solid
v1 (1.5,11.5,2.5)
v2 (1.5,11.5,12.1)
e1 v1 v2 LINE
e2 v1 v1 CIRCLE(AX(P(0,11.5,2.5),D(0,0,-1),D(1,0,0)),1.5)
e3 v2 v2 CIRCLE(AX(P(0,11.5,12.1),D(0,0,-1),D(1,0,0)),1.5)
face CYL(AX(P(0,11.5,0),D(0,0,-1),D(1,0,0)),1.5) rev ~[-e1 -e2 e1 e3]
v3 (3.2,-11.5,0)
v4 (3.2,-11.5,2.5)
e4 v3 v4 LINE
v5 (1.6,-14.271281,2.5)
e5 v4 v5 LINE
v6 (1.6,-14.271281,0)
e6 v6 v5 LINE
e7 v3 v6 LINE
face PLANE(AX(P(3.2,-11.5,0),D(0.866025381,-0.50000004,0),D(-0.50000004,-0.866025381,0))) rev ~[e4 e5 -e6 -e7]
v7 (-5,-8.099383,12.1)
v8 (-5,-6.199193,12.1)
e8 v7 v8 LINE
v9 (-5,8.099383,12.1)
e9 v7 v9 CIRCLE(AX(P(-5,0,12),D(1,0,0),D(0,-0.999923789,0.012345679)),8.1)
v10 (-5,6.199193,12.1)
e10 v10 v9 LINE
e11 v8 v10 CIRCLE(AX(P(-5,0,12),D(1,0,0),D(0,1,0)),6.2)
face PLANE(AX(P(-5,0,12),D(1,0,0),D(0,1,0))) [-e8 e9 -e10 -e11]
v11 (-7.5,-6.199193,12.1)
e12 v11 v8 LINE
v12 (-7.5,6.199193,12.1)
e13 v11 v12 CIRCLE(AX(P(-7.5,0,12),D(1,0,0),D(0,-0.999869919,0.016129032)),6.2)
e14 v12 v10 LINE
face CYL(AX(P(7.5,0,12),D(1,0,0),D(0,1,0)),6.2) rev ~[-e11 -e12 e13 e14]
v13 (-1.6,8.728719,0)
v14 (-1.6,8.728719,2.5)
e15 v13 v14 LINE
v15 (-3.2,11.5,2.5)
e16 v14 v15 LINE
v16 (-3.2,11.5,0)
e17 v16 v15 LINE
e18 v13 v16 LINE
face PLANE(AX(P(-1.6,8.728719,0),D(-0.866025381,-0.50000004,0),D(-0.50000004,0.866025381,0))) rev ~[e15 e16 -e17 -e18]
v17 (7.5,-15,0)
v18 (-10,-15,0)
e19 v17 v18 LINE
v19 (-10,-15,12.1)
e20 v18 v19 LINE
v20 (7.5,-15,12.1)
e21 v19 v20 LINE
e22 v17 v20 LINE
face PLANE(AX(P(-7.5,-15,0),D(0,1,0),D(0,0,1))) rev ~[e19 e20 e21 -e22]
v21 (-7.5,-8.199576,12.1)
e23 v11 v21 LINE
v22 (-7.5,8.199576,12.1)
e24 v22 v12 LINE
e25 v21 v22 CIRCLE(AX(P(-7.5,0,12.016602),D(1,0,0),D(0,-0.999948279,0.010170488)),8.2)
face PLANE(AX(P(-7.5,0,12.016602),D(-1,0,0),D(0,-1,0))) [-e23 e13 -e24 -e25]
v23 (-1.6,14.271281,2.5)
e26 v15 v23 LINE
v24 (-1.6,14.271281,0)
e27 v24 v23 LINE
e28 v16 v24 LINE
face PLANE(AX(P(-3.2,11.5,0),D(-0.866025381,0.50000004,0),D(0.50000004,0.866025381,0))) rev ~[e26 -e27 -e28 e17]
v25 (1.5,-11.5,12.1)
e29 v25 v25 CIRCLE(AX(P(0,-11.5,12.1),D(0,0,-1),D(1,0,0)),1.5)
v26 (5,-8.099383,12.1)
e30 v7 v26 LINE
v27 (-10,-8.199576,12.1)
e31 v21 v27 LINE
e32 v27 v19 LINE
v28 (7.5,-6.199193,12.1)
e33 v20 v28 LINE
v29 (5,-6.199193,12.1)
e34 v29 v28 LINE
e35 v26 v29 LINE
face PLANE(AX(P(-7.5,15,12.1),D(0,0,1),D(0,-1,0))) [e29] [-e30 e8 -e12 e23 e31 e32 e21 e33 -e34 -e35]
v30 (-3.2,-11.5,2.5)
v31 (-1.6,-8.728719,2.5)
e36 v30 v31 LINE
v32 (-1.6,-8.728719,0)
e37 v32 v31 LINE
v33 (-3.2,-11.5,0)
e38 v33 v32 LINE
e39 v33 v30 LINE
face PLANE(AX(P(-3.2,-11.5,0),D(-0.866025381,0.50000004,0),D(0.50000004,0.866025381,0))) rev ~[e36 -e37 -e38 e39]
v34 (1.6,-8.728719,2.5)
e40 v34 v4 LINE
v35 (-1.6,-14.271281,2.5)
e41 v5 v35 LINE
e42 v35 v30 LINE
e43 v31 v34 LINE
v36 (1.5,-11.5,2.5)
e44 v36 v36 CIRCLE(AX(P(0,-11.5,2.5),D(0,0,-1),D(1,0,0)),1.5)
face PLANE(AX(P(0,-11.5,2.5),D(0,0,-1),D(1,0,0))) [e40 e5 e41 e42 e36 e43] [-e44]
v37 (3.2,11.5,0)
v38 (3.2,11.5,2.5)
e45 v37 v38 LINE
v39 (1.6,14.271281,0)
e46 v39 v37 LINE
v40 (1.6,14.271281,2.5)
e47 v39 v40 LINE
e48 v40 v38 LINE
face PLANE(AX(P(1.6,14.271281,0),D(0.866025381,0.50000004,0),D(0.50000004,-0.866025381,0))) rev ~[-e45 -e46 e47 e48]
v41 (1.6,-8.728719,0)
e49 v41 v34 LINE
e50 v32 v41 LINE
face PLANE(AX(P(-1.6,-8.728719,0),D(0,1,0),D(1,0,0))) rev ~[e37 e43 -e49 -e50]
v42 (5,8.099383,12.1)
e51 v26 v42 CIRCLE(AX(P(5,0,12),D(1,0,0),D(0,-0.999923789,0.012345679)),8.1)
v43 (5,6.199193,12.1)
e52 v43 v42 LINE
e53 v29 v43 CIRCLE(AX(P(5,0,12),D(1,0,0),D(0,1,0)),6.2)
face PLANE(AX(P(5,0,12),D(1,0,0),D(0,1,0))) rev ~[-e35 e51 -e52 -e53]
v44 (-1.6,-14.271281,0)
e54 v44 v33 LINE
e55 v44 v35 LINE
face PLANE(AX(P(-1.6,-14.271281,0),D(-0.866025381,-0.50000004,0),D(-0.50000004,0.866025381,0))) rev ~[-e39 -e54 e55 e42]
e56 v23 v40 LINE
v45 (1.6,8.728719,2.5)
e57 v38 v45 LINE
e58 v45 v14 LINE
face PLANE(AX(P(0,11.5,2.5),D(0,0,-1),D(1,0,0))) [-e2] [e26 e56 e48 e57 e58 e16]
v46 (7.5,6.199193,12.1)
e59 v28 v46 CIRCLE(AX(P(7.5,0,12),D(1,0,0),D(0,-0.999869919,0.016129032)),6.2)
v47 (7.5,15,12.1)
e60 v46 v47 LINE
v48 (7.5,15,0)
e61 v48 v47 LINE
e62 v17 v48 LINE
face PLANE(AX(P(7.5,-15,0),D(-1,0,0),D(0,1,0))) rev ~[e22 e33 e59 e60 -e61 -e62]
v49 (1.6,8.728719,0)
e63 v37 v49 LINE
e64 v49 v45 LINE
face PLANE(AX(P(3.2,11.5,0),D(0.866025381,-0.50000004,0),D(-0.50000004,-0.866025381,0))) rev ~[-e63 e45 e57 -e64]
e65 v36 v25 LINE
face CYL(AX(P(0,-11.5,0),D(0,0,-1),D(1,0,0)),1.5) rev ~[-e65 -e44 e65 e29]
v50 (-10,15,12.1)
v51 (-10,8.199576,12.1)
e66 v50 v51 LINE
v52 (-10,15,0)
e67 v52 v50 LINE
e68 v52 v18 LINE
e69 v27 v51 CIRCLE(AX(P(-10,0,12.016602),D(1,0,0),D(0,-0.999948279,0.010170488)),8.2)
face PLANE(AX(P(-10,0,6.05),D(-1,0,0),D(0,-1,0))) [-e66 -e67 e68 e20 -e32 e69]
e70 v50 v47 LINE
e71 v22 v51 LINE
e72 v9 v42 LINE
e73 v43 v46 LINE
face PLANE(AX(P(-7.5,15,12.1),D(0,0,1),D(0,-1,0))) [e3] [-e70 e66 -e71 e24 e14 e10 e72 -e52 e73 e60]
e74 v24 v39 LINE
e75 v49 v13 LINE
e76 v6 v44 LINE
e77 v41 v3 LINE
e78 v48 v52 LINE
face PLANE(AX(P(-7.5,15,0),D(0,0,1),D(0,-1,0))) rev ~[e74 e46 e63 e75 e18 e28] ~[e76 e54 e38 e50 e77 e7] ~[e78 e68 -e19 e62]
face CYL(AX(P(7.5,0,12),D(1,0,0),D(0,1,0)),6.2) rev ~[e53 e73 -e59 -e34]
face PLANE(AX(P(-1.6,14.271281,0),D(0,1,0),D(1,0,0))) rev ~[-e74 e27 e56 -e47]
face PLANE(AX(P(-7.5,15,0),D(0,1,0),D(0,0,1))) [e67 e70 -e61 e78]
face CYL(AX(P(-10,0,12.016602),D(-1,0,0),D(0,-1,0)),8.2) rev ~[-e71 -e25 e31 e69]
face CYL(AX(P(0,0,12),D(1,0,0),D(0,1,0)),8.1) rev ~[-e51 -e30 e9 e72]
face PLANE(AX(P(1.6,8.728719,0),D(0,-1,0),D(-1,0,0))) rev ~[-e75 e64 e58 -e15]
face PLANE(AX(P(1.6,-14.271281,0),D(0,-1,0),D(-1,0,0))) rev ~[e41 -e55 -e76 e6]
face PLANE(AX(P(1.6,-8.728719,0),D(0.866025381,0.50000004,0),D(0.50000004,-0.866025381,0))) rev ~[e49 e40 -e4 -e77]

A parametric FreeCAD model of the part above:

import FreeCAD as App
import Part
import Sketcher
Q = App.Units.Quantity


def add_polygon(sketch, points):
    """Adds a closed chain of lines whose ends are joined by coincident constraints."""
    first, n = sketch.GeometryCount, len(points)
    for a, b in zip(points, points[1:] + points[:1]):
        sketch.addGeometry(Part.LineSegment(App.Vector(*a, 0), App.Vector(*b, 0)), False)
    for i in range(n):
        sketch.addConstraint(Sketcher.Constraint("Coincident", first + i, 2, first + (i + 1) % n, 1))

doc = App.newDocument("Part")
params = doc.addObject("Spreadsheet::Sheet", "Params")
for row, (alias, value) in enumerate([
    ("sketch1_diameter", "16.2 mm"),
    ("pad1_length", "10 mm"),
    ("sketch2_width", "15 mm"),
    ("sketch2_height", "30 mm"),
    ("pad2_length", "12.1 mm"),
    ("sketch3_diameter", "12.4 mm"),
    ("sketch4_diameter", "3 mm"),
    ("sketch5_width", "3.2 mm"),
    ("sketch5_length", "3.2 mm"),
    ("pocket3_length", "2.5 mm"),
    ("sketch6_width", "30 mm"),
    ("sketch6_height", "12.1 mm"),
    ("pad3_length", "2.5 mm"),
    ("sketch7_diameter", "16.4 mm"),
    ("pocket4_length", "2.5 mm"),
], start=1):
    params.set(f"A{row}", alias)
    params.set(f"B{row}", "=" + value)
    params.setAlias(f"B{row}", alias)

body = doc.addObject("PartDesign::Body", "Body")

# Sketch on YZ plane
sketch1 = doc.addObject("Sketcher::SketchObject", "Sketch")
body.addObject(sketch1)
sketch1.AttachmentSupport = (doc.YZ_Plane, [""])
sketch1.MapMode = "FlatFace"
sketch1.addGeometry(Part.Circle(App.Vector(0, 12, 0), App.Vector(0, 0, 1), 8), False)
sketch1.addConstraint(Sketcher.Constraint("PointOnObject", 0, 3, -2))
sketch1.addConstraint(Sketcher.Constraint("Diameter", 0, Q("16.2 mm")))
sketch1.addConstraint(Sketcher.Constraint("DistanceY", -1, 1, 0, 3, Q("12 mm")))
sketch1.setExpression("Constraints[1]", "Params.sketch1_diameter")
pad1 = doc.addObject("PartDesign::Pad", "Pad")
body.addObject(pad1)
pad1.Profile = sketch1
pad1.setExpression("Length", "Params.pad1_length")
pad1.Midplane = True
body2 = doc.addObject("PartDesign::Body", "Body001")

# Sketch on XY plane
sketch2 = doc.addObject("Sketcher::SketchObject", "Sketch001")
body2.addObject(sketch2)
sketch2.AttachmentSupport = (doc.getObject("XY_Plane001"), [""])
sketch2.MapMode = "FlatFace"
add_polygon(sketch2, [(-8, 15), (-8, -15), (8, -15), (8, 15)])  # lines 0-3
sketch2.addConstraint(Sketcher.Constraint("Vertical", 0))
sketch2.addConstraint(Sketcher.Constraint("Horizontal", 1))
sketch2.addConstraint(Sketcher.Constraint("Vertical", 2))
sketch2.addConstraint(Sketcher.Constraint("Horizontal", 3))
sketch2.addConstraint(Sketcher.Constraint("Symmetric", 0, 2, 2, 2, -1, 1))
sketch2.addConstraint(Sketcher.Constraint("DistanceX", 1, 1, 1, 2, Q("15 mm")))
sketch2.addConstraint(Sketcher.Constraint("DistanceY", 0, 2, 0, 1, Q("30 mm")))
sketch2.setExpression("Constraints[9]", "Params.sketch2_width")
sketch2.setExpression("Constraints[10]", "Params.sketch2_height")
pad2 = doc.addObject("PartDesign::Pad", "Pad001")
body2.addObject(pad2)
pad2.Profile = sketch2
pad2.setExpression("Length", "Params.pad2_length")

# Sketch on YZ plane
sketch3 = doc.addObject("Sketcher::SketchObject", "Sketch002")
body2.addObject(sketch3)
sketch3.AttachmentSupport = (doc.getObject("YZ_Plane001"), [""])
sketch3.MapMode = "FlatFace"
sketch3.AttachmentOffset = App.Placement(App.Vector(0, 0, 7.5), App.Rotation())
sketch3.addGeometry(Part.Circle(App.Vector(0, 12, 0), App.Vector(0, 0, 1), 6), False)
sketch3.addConstraint(Sketcher.Constraint("PointOnObject", 0, 3, -2))
sketch3.addConstraint(Sketcher.Constraint("Diameter", 0, Q("12.4 mm")))
sketch3.addConstraint(Sketcher.Constraint("DistanceY", -1, 1, 0, 3, Q("12 mm")))
sketch3.setExpression("Constraints[1]", "Params.sketch3_diameter")
pocket1 = doc.addObject("PartDesign::Pocket", "Pocket")
body2.addObject(pocket1)
pocket1.Profile = sketch3
pocket1.Type = "ThroughAll"
doc.recompute()

boolean = doc.addObject("PartDesign::Boolean", "Boolean")
body2.addObject(boolean)
boolean.Type = "Cut"
boolean.addObjects([body])

# Sketch on XY plane
sketch4 = doc.addObject("Sketcher::SketchObject", "Sketch003")
body2.addObject(sketch4)
sketch4.AttachmentSupport = (doc.getObject("XY_Plane001"), [""])
sketch4.MapMode = "FlatFace"
sketch4.addGeometry(Part.Circle(App.Vector(0, -11.5, 0), App.Vector(0, 0, 1), 1.5), False)
sketch4.addGeometry(Part.Circle(App.Vector(0, 11.5, 0), App.Vector(0, 0, 1), 1.5), False)
sketch4.addConstraint(Sketcher.Constraint("Equal", 0, 1))
sketch4.addConstraint(Sketcher.Constraint("Symmetric", 0, 3, 1, 3, -1, 1))
sketch4.addConstraint(Sketcher.Constraint("PointOnObject", 0, 3, -2))
sketch4.addConstraint(Sketcher.Constraint("Diameter", 0, Q("3 mm")))
sketch4.addConstraint(Sketcher.Constraint("DistanceY", 0, 3, 1, 3, Q("23 mm")))
sketch4.setExpression("Constraints[3]", "Params.sketch4_diameter")
pocket2 = doc.addObject("PartDesign::Pocket", "Pocket001")
body2.addObject(pocket2)
pocket2.Profile = sketch4
pocket2.Type = "ThroughAll"
pocket2.Reversed = True

# Sketch on XY plane
sketch5 = doc.addObject("Sketcher::SketchObject", "Sketch004")
body2.addObject(sketch5)
sketch5.AttachmentSupport = (doc.getObject("XY_Plane001"), [""])
sketch5.MapMode = "FlatFace"
add_polygon(sketch5, [(3.2, -11.5), (1.6, -14.3), (-1.6, -14.3), (-3.2, -11.5), (-1.6, -8.7), (1.6, -8.7)])  # lines 0-5
add_polygon(sketch5, [(1.6, 14.3), (3.2, 11.5), (1.6, 8.7), (-1.6, 8.7), (-3.2, 11.5), (-1.6, 14.3)])  # lines 6-11
sketch5.addConstraint(Sketcher.Constraint("Horizontal", 1))
sketch5.addConstraint(Sketcher.Constraint("Horizontal", 4))
sketch5.addConstraint(Sketcher.Constraint("Horizontal", 8))
sketch5.addConstraint(Sketcher.Constraint("Horizontal", 11))
sketch5.addConstraint(Sketcher.Constraint("Symmetric", 2, 2, 6, 2, -1, 1))
sketch5.addConstraint(Sketcher.Constraint("Symmetric", 3, 2, 7, 2, -1, 1))
sketch5.addConstraint(Sketcher.Constraint("Symmetric", 5, 2, 9, 2, -1, 1))
sketch5.addConstraint(Sketcher.Constraint("Symmetric", 0, 2, 10, 2, -1, 1))
sketch5.addConstraint(Sketcher.Constraint("Symmetric", 2, 2, 5, 2, -2))
sketch5.addConstraint(Sketcher.Constraint("Parallel", 0, 3))
sketch5.addConstraint(Sketcher.Constraint("Parallel", 2, 5))
sketch5.addConstraint(Sketcher.Constraint("Parallel", 5, 6))
sketch5.addConstraint(Sketcher.Constraint("Parallel", 6, 9))
sketch5.addConstraint(Sketcher.Constraint("Vertical", 1, 2, 3, 2))
sketch5.addConstraint(Sketcher.Constraint("Vertical", 0, 2, 4, 2))
sketch5.addConstraint(Sketcher.Constraint("Angle", 0, Q("-120.000003 deg")))
sketch5.addConstraint(Sketcher.Constraint("DistanceX", 1, 2, 1, 1, Q("3.2 mm")))
sketch5.addConstraint(Sketcher.Constraint("DistanceY", 5, 2, 6, 2, Q("23 mm")))
sketch5.addConstraint(Sketcher.Constraint("Distance", 0, Q("3.2 mm")))
sketch5.setExpression("Constraints[28]", "Params.sketch5_width")
sketch5.setExpression("Constraints[30]", "Params.sketch5_length")
pocket3 = doc.addObject("PartDesign::Pocket", "Pocket002")
body2.addObject(pocket3)
pocket3.Profile = sketch5
pocket3.setExpression("Length", "Params.pocket3_length")
pocket3.Reversed = True

# Sketch on YZ plane
sketch6 = doc.addObject("Sketcher::SketchObject", "Sketch005")
body2.addObject(sketch6)
sketch6.AttachmentSupport = (doc.getObject("YZ_Plane001"), [""])
sketch6.MapMode = "FlatFace"
sketch6.AttachmentOffset = App.Placement(App.Vector(0, 0, -7.5), App.Rotation())
add_polygon(sketch6, [(15, 12), (15, 0), (-15, 0), (-15, 12)])  # lines 0-3
sketch6.addConstraint(Sketcher.Constraint("Vertical", 0))
sketch6.addConstraint(Sketcher.Constraint("Horizontal", 1))
sketch6.addConstraint(Sketcher.Constraint("Vertical", 2))
sketch6.addConstraint(Sketcher.Constraint("Horizontal", 3))
sketch6.addConstraint(Sketcher.Constraint("Symmetric", 0, 2, 1, 2, -1, 1))
sketch6.addConstraint(Sketcher.Constraint("DistanceX", 1, 2, 1, 1, Q("30 mm")))
sketch6.addConstraint(Sketcher.Constraint("DistanceY", 0, 2, 0, 1, Q("12.1 mm")))
sketch6.setExpression("Constraints[9]", "Params.sketch6_width")
sketch6.setExpression("Constraints[10]", "Params.sketch6_height")
pad3 = doc.addObject("PartDesign::Pad", "Pad002")
body2.addObject(pad3)
pad3.Profile = sketch6
pad3.setExpression("Length", "Params.pad3_length")
pad3.Reversed = True

# Sketch on YZ plane
sketch7 = doc.addObject("Sketcher::SketchObject", "Sketch006")
body2.addObject(sketch7)
sketch7.AttachmentSupport = (doc.getObject("YZ_Plane001"), [""])
sketch7.MapMode = "FlatFace"
sketch7.AttachmentOffset = App.Placement(App.Vector(0, 0, -10), App.Rotation())
sketch7.addGeometry(Part.Circle(App.Vector(0, 12, 0), App.Vector(0, 0, 1), 8), False)
sketch7.addConstraint(Sketcher.Constraint("PointOnObject", 0, 3, -2))
sketch7.addConstraint(Sketcher.Constraint("Diameter", 0, Q("16.4 mm")))
sketch7.addConstraint(Sketcher.Constraint("DistanceY", -1, 1, 0, 3, Q("12.016602 mm")))
sketch7.setExpression("Constraints[1]", "Params.sketch7_diameter")
pocket4 = doc.addObject("PartDesign::Pocket", "Pocket003")
body2.addObject(pocket4)
pocket4.Profile = sketch7
pocket4.setExpression("Length", "Params.pocket4_length")
pocket4.Reversed = True

doc.recompute()
